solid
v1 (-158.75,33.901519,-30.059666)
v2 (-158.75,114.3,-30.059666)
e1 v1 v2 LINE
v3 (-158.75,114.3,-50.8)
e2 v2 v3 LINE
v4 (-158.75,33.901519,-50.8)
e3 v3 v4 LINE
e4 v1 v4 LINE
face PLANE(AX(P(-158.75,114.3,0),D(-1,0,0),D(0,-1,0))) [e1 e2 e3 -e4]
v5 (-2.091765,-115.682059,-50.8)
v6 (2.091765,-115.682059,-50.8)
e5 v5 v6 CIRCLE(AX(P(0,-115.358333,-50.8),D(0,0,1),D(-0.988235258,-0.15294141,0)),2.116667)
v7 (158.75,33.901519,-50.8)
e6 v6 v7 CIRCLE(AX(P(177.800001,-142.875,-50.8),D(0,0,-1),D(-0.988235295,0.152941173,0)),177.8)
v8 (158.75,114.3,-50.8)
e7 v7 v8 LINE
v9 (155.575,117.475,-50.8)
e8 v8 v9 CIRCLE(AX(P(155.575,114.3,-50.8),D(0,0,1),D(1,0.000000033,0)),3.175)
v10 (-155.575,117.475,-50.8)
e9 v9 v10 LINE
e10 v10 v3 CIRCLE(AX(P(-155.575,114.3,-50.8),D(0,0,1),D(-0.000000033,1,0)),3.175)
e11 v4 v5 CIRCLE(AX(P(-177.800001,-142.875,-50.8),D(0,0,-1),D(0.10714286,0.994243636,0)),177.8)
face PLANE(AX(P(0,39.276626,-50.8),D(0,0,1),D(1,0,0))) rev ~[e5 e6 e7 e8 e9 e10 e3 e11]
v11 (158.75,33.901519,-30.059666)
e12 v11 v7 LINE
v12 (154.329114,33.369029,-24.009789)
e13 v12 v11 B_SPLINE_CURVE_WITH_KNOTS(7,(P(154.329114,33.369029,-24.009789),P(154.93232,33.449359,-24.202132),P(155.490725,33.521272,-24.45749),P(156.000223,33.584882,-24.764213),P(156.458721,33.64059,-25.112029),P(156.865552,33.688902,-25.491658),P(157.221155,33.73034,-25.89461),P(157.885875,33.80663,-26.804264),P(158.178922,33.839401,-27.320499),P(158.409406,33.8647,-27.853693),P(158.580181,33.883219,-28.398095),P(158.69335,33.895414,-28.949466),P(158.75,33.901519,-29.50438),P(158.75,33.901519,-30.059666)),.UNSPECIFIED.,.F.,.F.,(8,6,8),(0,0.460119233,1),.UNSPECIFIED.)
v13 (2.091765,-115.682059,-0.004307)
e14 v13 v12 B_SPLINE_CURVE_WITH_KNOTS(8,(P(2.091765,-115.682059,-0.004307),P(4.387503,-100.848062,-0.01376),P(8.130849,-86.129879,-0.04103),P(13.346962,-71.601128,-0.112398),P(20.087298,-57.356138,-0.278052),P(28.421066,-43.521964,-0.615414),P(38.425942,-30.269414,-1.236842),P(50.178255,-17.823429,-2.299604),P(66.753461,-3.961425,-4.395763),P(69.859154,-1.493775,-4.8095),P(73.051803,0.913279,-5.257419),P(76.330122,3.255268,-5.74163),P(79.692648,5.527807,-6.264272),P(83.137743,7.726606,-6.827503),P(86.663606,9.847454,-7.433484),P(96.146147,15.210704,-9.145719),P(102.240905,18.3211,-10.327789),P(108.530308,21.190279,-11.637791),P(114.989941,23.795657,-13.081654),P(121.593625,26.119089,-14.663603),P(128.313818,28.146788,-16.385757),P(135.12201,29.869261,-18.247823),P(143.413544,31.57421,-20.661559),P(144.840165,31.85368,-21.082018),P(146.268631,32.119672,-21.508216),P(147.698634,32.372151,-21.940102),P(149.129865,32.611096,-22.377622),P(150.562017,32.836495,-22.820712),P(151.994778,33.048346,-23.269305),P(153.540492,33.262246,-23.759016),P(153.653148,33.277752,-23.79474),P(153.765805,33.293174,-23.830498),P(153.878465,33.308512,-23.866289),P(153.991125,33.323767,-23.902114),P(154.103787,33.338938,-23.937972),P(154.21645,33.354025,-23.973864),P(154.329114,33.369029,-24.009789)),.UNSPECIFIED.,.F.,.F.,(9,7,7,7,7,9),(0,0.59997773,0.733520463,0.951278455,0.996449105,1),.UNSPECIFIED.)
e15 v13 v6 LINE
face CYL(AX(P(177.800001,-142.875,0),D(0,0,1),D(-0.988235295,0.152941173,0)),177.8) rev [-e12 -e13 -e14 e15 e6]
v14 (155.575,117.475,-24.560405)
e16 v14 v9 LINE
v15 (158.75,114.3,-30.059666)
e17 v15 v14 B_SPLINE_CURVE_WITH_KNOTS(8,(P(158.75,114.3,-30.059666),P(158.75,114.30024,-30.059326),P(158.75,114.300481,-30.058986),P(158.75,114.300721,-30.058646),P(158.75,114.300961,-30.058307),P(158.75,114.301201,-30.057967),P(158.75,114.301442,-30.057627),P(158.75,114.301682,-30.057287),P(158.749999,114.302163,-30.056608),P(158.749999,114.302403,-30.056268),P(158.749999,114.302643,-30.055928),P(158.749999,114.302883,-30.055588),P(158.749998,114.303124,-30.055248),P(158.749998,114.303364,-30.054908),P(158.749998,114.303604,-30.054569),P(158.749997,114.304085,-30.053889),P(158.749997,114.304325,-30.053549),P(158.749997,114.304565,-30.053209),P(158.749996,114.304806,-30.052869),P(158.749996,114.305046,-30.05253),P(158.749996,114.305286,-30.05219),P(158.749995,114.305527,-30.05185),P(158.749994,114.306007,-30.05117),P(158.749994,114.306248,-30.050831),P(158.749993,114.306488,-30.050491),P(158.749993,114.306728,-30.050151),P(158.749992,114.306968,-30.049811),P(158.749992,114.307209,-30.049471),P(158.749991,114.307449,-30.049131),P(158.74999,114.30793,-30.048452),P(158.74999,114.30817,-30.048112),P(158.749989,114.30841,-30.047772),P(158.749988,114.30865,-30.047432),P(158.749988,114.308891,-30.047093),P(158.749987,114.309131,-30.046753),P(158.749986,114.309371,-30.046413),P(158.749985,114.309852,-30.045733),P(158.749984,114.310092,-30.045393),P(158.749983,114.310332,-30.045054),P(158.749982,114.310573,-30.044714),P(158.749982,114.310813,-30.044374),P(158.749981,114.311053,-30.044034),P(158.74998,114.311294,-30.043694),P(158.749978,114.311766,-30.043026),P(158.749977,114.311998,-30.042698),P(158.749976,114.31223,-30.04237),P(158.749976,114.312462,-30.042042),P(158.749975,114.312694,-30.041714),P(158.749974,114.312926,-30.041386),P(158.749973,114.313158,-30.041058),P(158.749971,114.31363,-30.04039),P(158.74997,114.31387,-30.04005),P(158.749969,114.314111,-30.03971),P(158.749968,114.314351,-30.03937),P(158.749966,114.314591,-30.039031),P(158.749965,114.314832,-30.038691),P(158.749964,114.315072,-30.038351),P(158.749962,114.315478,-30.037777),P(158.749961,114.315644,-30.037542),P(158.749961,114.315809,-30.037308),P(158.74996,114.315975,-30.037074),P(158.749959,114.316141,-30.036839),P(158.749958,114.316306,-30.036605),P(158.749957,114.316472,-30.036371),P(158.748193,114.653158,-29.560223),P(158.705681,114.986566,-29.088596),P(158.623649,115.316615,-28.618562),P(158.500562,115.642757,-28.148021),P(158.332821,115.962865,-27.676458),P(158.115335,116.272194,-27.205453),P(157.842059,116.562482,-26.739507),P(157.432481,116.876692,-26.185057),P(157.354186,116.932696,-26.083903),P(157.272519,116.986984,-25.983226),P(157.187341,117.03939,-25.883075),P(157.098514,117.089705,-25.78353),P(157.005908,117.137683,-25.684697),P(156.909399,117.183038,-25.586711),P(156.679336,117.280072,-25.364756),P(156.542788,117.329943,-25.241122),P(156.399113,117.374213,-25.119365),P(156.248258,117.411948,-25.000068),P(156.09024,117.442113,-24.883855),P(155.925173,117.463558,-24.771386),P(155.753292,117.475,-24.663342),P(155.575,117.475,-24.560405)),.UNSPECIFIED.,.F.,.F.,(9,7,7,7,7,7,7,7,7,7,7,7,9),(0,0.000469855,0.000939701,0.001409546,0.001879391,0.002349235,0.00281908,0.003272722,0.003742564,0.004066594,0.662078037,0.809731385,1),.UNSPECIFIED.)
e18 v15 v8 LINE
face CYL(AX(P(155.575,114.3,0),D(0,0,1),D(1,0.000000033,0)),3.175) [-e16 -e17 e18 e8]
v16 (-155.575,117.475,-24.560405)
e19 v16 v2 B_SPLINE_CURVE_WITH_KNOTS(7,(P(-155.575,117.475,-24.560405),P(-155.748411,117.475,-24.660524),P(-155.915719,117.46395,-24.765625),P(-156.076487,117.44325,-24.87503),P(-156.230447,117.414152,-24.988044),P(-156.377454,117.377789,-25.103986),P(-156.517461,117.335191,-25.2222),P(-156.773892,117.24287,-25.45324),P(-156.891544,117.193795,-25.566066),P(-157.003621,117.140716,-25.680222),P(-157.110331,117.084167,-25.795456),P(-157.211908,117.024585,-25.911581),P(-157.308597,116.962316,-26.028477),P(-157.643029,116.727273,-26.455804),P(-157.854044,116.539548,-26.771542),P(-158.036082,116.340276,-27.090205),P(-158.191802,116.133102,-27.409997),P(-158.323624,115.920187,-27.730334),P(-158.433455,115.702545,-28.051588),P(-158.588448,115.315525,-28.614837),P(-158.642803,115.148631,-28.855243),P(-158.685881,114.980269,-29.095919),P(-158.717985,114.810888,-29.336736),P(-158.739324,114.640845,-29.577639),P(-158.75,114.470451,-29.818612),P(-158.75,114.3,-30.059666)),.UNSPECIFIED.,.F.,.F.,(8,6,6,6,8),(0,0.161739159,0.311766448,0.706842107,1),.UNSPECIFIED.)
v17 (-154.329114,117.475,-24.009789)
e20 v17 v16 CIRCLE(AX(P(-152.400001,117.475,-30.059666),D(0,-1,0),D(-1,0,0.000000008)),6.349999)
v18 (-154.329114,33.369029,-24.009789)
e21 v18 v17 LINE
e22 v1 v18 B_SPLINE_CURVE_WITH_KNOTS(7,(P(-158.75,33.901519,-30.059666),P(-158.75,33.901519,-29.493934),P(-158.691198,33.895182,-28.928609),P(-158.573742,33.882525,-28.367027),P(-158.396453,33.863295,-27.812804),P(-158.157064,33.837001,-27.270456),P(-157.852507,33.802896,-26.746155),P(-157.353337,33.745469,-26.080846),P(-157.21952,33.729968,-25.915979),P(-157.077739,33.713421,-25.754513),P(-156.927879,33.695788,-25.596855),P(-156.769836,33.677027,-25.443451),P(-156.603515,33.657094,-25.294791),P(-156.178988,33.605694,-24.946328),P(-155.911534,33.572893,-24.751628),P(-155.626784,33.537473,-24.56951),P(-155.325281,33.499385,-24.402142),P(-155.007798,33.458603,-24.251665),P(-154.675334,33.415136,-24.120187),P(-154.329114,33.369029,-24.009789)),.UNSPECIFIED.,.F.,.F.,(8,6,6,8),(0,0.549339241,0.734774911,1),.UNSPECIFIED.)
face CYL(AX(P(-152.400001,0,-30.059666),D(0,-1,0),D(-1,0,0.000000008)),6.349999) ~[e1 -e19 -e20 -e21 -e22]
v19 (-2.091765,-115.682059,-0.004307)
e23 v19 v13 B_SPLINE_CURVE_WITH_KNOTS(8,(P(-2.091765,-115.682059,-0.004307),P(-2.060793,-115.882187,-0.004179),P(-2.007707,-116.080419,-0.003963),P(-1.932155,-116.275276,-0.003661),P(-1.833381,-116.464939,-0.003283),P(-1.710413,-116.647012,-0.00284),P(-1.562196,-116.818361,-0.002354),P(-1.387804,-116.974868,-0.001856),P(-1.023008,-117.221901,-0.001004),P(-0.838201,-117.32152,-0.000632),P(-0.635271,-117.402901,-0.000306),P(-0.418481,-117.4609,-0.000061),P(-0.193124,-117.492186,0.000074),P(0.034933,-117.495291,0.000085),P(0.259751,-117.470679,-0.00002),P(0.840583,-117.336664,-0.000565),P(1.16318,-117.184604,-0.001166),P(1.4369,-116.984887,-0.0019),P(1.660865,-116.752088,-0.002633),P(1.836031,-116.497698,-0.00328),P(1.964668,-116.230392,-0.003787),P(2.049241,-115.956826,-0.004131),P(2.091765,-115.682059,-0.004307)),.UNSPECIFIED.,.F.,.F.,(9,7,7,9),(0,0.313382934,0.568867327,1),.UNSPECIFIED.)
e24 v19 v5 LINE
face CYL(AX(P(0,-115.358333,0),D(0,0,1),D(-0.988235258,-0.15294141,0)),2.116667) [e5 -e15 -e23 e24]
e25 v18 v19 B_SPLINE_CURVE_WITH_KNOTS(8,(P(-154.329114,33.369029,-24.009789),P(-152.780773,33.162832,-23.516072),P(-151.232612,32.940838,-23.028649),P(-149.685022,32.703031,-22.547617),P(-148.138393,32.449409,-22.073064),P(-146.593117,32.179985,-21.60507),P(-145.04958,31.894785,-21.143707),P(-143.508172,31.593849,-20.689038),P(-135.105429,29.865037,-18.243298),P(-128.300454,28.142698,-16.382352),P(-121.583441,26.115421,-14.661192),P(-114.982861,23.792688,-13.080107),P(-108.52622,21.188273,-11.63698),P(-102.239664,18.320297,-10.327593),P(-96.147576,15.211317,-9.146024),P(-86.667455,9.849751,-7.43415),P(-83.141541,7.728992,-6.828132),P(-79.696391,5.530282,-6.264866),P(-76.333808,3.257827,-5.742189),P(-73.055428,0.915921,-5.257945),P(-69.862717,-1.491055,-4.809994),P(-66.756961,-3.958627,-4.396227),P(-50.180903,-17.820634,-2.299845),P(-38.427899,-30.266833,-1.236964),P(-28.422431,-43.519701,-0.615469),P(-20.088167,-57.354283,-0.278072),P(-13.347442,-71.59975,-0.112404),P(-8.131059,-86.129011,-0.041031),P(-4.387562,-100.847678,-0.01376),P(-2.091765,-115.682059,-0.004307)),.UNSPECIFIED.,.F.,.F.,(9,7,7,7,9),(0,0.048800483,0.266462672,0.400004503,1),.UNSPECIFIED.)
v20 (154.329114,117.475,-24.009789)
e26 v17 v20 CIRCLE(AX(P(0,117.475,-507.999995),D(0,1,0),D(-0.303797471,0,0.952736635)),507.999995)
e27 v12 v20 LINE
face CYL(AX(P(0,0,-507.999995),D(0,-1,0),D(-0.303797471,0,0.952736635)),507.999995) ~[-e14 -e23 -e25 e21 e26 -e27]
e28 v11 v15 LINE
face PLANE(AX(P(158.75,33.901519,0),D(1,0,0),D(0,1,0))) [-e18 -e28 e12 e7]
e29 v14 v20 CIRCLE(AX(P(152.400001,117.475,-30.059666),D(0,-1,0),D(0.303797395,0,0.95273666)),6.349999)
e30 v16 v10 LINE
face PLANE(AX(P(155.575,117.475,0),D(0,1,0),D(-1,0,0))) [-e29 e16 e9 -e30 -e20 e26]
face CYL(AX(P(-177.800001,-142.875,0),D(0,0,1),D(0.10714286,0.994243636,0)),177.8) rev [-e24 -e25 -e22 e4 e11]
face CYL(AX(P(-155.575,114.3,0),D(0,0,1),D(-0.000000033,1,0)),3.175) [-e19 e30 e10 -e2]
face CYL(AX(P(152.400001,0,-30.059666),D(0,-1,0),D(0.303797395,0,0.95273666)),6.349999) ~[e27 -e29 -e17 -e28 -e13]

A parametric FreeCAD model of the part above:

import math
import FreeCAD as App
import Part
import Sketcher
from FreeCAD import Vector
Q = App.Units.Quantity


def add_polygon(sketch, points):
    """Adds a closed chain of lines whose ends are joined by coincident constraints."""
    first, n = sketch.GeometryCount, len(points)
    for a, b in zip(points, points[1:] + points[:1]):
        sketch.addGeometry(Part.LineSegment(App.Vector(*a, 0), App.Vector(*b, 0)), False)
    for i in range(n):
        sketch.addConstraint(Sketcher.Constraint("Coincident", first + i, 2, first + (i + 1) % n, 1))

doc = App.newDocument("Part")
params = doc.addObject("Spreadsheet::Sheet", "Params")
for row, (alias, value) in enumerate([
    ("sketch1_radius", "7 in"),
    ("sketch1_radius2", "0.125 in"),
    ("sketch1_width", "12.25 in"),
    ("pad1_length", "2 in"),
    ("sketch2_radius", "19.9999998 in"),
    ("sketch2_height", "3 in"),
    ("sketch2_radius2", "0.25 in"),
    ("sketch2_width", "13.5 in"),
    ("sketch2_width2", "12.5 in"),
    ("pocket1_length", "10 in"),
], start=1):
    params.set(f"A{row}", alias)
    params.set(f"B{row}", "=" + value)
    params.setAlias(f"B{row}", alias)

body = doc.addObject("PartDesign::Body", "Body")

# Sketch on XY plane
sketch1 = body.newObject("Sketcher::SketchObject", "Sketch")
sketch1.AttachmentSupport = (doc.getObject("XY_Plane"), [""])
sketch1.MapMode = "FlatFace"
sketch1.addGeometry(Part.LineSegment(Vector(155.6, 117.5, 0), Vector(-155.6, 117.5, 0)), False)
sketch1.addGeometry(Part.ArcOfCircle(Part.Circle(Vector(-155.6, 114.3, 0), Vector(0, 0, 1), 3.2), math.radians(90), math.radians(180)), False)
sketch1.addGeometry(Part.LineSegment(Vector(-158.8, 114.3, 0), Vector(-158.8, 33.9, 0)), False)
sketch1.addGeometry(Part.ArcOfCircle(Part.Circle(Vector(-177.8, -142.9, 0), Vector(0, 0, 1), 177.8), math.radians(9), math.radians(84)), False)
sketch1.addGeometry(Part.ArcOfCircle(Part.Circle(Vector(0, -115.4, 0), Vector(0, 0, 1), 2.1), math.radians(-171), math.radians(-9)), False)
sketch1.addGeometry(Part.ArcOfCircle(Part.Circle(Vector(177.8, -142.9, 0), Vector(0, 0, 1), 177.8), math.radians(96), math.radians(171)), False)
sketch1.addGeometry(Part.LineSegment(Vector(158.8, 33.9, 0), Vector(158.8, 114.3, 0)), False)
sketch1.addGeometry(Part.ArcOfCircle(Part.Circle(Vector(155.6, 114.3, 0), Vector(0, 0, 1), 3.2), math.radians(0), math.radians(90)), False)
sketch1.addConstraint(Sketcher.Constraint("Tangent", 0, 2, 1, 1))
sketch1.addConstraint(Sketcher.Constraint("Tangent", 1, 2, 2, 1))
sketch1.addConstraint(Sketcher.Constraint("Coincident", 2, 2, 3, 2))
sketch1.addConstraint(Sketcher.Constraint("Tangent", 3, 1, 4, 1))
sketch1.addConstraint(Sketcher.Constraint("Tangent", 4, 2, 5, 2))
sketch1.addConstraint(Sketcher.Constraint("Coincident", 5, 1, 6, 1))
sketch1.addConstraint(Sketcher.Constraint("Tangent", 6, 2, 7, 1))
sketch1.addConstraint(Sketcher.Constraint("Tangent", 7, 2, 0, 1))
sketch1.addConstraint(Sketcher.Constraint("Horizontal", 0))
sketch1.addConstraint(Sketcher.Constraint("Vertical", 2))
sketch1.addConstraint(Sketcher.Constraint("Vertical", 6))
sketch1.addConstraint(Sketcher.Constraint("Equal", 3, 5))
sketch1.addConstraint(Sketcher.Constraint("Equal", 1, 7))
sketch1.addConstraint(Sketcher.Constraint("Symmetric", 3, 3, 5, 3, -2))
sketch1.addConstraint(Sketcher.Constraint("Horizontal", 2, 2, 5, 1))
sketch1.addConstraint(Sketcher.Constraint("Radius", 3, Q("7 in")))
sketch1.addConstraint(Sketcher.Constraint("DistanceX", 3, 3, -1, 1, Q("7 in")))
sketch1.addConstraint(Sketcher.Constraint("Radius", 1, Q("0.125 in")))
sketch1.addConstraint(Sketcher.Constraint("DistanceX", 0, 2, 0, 1, Q("12.25 in")))
sketch1.addConstraint(Sketcher.Constraint("DistanceY", -1, 1, 1, 3, Q("4.5 in")))
sketch1.addConstraint(Sketcher.Constraint("DistanceY", 3, 3, 0, 2, Q("10.25 in")))
sketch1.addConstraint(Sketcher.Constraint("Radius", 4, 2.116667))
sketch1.setExpression("Constraints[15]", "Params.sketch1_radius")
sketch1.setExpression("Constraints[17]", "Params.sketch1_radius2")
sketch1.setExpression("Constraints[18]", "Params.sketch1_width")
pad1 = body.newObject("PartDesign::Pad", "Pad")
pad1.Profile = sketch1
pad1.setExpression("Length", "Params.pad1_length")
pad1.Reversed = True

# Sketch on XZ plane
sketch2 = body.newObject("Sketcher::SketchObject", "Sketch001")
sketch2.AttachmentSupport = (doc.getObject("XZ_Plane"), [""])
sketch2.MapMode = "FlatFace"
add_polygon(sketch2, [(-171, 13), (-171, -64), (171, -64), (171, 13)])  # lines 0-3
sketch2.addGeometry(Part.LineSegment(Vector(159, -30, 0), Vector(159, -51, 0)), False)  # 4
sketch2.addGeometry(Part.LineSegment(Vector(159, -51, 0), Vector(-159, -51, 0)), False)  # 5
sketch2.addGeometry(Part.LineSegment(Vector(-159, -51, 0), Vector(-159, -30, 0)), False)  # 6
sketch2.addGeometry(Part.ArcOfCircle(Part.Circle(Vector(-152, -30, 0), Vector(0, 0, 1), 6), math.radians(108), math.radians(180)), False)  # 7
sketch2.addGeometry(Part.ArcOfCircle(Part.Circle(Vector(0, -508, 0), Vector(0, 0, 1), 508), math.radians(72), math.radians(108)), False)  # 8
sketch2.addGeometry(Part.ArcOfCircle(Part.Circle(Vector(152, -30, 0), Vector(0, 0, 1), 6), math.radians(0), math.radians(72)), False)  # 9
sketch2.addConstraint(Sketcher.Constraint("Coincident", 4, 2, 5, 1))
sketch2.addConstraint(Sketcher.Constraint("Coincident", 5, 2, 6, 1))
sketch2.addConstraint(Sketcher.Constraint("Tangent", 6, 2, 7, 2))
sketch2.addConstraint(Sketcher.Constraint("Tangent", 7, 1, 8, 2))
sketch2.addConstraint(Sketcher.Constraint("Tangent", 8, 1, 9, 2))
sketch2.addConstraint(Sketcher.Constraint("Tangent", 9, 1, 4, 1))
sketch2.addConstraint(Sketcher.Constraint("Vertical", 0))
sketch2.addConstraint(Sketcher.Constraint("Horizontal", 1))
sketch2.addConstraint(Sketcher.Constraint("Vertical", 2))
sketch2.addConstraint(Sketcher.Constraint("Horizontal", 3))
sketch2.addConstraint(Sketcher.Constraint("Vertical", 4))
sketch2.addConstraint(Sketcher.Constraint("Horizontal", 5))
sketch2.addConstraint(Sketcher.Constraint("Vertical", 6))
sketch2.addConstraint(Sketcher.Constraint("Equal", 7, 9))
sketch2.addConstraint(Sketcher.Constraint("Symmetric", 7, 3, 9, 3, -2))
sketch2.addConstraint(Sketcher.Constraint("Radius", 8, Q("19.9999998 in")))
sketch2.addConstraint(Sketcher.Constraint("DistanceY", 0, 2, 0, 1, Q("3 in")))
sketch2.addConstraint(Sketcher.Constraint("Radius", 7, Q("0.25 in")))
sketch2.addConstraint(Sketcher.Constraint("DistanceX", 1, 1, 1, 2, Q("13.5 in")))
sketch2.addConstraint(Sketcher.Constraint("DistanceX", 5, 2, 5, 1, Q("12.5 in")))
sketch2.addConstraint(Sketcher.Constraint("DistanceY", 8, 3, -1, 1, Q("19.9999998 in")))
sketch2.addConstraint(Sketcher.Constraint("DistanceY", 4, 2, -1, 1, Q("2 in")))
sketch2.addConstraint(Sketcher.Constraint("DistanceX", 0, 2, 4, 2, Q("13 in")))
sketch2.addConstraint(Sketcher.Constraint("DistanceY", 0, 2, -1, 1, Q("2.5 in")))
sketch2.setExpression("Constraints[19]", "Params.sketch2_radius")
sketch2.setExpression("Constraints[20]", "Params.sketch2_height")
sketch2.setExpression("Constraints[21]", "Params.sketch2_radius2")
sketch2.setExpression("Constraints[22]", "Params.sketch2_width")
sketch2.setExpression("Constraints[23]", "Params.sketch2_width2")
pocket1 = body.newObject("PartDesign::Pocket", "Pocket")
pocket1.Profile = sketch2
pocket1.setExpression("Length", "Params.pocket1_length")
pocket1.Midplane = True

doc.recompute()
